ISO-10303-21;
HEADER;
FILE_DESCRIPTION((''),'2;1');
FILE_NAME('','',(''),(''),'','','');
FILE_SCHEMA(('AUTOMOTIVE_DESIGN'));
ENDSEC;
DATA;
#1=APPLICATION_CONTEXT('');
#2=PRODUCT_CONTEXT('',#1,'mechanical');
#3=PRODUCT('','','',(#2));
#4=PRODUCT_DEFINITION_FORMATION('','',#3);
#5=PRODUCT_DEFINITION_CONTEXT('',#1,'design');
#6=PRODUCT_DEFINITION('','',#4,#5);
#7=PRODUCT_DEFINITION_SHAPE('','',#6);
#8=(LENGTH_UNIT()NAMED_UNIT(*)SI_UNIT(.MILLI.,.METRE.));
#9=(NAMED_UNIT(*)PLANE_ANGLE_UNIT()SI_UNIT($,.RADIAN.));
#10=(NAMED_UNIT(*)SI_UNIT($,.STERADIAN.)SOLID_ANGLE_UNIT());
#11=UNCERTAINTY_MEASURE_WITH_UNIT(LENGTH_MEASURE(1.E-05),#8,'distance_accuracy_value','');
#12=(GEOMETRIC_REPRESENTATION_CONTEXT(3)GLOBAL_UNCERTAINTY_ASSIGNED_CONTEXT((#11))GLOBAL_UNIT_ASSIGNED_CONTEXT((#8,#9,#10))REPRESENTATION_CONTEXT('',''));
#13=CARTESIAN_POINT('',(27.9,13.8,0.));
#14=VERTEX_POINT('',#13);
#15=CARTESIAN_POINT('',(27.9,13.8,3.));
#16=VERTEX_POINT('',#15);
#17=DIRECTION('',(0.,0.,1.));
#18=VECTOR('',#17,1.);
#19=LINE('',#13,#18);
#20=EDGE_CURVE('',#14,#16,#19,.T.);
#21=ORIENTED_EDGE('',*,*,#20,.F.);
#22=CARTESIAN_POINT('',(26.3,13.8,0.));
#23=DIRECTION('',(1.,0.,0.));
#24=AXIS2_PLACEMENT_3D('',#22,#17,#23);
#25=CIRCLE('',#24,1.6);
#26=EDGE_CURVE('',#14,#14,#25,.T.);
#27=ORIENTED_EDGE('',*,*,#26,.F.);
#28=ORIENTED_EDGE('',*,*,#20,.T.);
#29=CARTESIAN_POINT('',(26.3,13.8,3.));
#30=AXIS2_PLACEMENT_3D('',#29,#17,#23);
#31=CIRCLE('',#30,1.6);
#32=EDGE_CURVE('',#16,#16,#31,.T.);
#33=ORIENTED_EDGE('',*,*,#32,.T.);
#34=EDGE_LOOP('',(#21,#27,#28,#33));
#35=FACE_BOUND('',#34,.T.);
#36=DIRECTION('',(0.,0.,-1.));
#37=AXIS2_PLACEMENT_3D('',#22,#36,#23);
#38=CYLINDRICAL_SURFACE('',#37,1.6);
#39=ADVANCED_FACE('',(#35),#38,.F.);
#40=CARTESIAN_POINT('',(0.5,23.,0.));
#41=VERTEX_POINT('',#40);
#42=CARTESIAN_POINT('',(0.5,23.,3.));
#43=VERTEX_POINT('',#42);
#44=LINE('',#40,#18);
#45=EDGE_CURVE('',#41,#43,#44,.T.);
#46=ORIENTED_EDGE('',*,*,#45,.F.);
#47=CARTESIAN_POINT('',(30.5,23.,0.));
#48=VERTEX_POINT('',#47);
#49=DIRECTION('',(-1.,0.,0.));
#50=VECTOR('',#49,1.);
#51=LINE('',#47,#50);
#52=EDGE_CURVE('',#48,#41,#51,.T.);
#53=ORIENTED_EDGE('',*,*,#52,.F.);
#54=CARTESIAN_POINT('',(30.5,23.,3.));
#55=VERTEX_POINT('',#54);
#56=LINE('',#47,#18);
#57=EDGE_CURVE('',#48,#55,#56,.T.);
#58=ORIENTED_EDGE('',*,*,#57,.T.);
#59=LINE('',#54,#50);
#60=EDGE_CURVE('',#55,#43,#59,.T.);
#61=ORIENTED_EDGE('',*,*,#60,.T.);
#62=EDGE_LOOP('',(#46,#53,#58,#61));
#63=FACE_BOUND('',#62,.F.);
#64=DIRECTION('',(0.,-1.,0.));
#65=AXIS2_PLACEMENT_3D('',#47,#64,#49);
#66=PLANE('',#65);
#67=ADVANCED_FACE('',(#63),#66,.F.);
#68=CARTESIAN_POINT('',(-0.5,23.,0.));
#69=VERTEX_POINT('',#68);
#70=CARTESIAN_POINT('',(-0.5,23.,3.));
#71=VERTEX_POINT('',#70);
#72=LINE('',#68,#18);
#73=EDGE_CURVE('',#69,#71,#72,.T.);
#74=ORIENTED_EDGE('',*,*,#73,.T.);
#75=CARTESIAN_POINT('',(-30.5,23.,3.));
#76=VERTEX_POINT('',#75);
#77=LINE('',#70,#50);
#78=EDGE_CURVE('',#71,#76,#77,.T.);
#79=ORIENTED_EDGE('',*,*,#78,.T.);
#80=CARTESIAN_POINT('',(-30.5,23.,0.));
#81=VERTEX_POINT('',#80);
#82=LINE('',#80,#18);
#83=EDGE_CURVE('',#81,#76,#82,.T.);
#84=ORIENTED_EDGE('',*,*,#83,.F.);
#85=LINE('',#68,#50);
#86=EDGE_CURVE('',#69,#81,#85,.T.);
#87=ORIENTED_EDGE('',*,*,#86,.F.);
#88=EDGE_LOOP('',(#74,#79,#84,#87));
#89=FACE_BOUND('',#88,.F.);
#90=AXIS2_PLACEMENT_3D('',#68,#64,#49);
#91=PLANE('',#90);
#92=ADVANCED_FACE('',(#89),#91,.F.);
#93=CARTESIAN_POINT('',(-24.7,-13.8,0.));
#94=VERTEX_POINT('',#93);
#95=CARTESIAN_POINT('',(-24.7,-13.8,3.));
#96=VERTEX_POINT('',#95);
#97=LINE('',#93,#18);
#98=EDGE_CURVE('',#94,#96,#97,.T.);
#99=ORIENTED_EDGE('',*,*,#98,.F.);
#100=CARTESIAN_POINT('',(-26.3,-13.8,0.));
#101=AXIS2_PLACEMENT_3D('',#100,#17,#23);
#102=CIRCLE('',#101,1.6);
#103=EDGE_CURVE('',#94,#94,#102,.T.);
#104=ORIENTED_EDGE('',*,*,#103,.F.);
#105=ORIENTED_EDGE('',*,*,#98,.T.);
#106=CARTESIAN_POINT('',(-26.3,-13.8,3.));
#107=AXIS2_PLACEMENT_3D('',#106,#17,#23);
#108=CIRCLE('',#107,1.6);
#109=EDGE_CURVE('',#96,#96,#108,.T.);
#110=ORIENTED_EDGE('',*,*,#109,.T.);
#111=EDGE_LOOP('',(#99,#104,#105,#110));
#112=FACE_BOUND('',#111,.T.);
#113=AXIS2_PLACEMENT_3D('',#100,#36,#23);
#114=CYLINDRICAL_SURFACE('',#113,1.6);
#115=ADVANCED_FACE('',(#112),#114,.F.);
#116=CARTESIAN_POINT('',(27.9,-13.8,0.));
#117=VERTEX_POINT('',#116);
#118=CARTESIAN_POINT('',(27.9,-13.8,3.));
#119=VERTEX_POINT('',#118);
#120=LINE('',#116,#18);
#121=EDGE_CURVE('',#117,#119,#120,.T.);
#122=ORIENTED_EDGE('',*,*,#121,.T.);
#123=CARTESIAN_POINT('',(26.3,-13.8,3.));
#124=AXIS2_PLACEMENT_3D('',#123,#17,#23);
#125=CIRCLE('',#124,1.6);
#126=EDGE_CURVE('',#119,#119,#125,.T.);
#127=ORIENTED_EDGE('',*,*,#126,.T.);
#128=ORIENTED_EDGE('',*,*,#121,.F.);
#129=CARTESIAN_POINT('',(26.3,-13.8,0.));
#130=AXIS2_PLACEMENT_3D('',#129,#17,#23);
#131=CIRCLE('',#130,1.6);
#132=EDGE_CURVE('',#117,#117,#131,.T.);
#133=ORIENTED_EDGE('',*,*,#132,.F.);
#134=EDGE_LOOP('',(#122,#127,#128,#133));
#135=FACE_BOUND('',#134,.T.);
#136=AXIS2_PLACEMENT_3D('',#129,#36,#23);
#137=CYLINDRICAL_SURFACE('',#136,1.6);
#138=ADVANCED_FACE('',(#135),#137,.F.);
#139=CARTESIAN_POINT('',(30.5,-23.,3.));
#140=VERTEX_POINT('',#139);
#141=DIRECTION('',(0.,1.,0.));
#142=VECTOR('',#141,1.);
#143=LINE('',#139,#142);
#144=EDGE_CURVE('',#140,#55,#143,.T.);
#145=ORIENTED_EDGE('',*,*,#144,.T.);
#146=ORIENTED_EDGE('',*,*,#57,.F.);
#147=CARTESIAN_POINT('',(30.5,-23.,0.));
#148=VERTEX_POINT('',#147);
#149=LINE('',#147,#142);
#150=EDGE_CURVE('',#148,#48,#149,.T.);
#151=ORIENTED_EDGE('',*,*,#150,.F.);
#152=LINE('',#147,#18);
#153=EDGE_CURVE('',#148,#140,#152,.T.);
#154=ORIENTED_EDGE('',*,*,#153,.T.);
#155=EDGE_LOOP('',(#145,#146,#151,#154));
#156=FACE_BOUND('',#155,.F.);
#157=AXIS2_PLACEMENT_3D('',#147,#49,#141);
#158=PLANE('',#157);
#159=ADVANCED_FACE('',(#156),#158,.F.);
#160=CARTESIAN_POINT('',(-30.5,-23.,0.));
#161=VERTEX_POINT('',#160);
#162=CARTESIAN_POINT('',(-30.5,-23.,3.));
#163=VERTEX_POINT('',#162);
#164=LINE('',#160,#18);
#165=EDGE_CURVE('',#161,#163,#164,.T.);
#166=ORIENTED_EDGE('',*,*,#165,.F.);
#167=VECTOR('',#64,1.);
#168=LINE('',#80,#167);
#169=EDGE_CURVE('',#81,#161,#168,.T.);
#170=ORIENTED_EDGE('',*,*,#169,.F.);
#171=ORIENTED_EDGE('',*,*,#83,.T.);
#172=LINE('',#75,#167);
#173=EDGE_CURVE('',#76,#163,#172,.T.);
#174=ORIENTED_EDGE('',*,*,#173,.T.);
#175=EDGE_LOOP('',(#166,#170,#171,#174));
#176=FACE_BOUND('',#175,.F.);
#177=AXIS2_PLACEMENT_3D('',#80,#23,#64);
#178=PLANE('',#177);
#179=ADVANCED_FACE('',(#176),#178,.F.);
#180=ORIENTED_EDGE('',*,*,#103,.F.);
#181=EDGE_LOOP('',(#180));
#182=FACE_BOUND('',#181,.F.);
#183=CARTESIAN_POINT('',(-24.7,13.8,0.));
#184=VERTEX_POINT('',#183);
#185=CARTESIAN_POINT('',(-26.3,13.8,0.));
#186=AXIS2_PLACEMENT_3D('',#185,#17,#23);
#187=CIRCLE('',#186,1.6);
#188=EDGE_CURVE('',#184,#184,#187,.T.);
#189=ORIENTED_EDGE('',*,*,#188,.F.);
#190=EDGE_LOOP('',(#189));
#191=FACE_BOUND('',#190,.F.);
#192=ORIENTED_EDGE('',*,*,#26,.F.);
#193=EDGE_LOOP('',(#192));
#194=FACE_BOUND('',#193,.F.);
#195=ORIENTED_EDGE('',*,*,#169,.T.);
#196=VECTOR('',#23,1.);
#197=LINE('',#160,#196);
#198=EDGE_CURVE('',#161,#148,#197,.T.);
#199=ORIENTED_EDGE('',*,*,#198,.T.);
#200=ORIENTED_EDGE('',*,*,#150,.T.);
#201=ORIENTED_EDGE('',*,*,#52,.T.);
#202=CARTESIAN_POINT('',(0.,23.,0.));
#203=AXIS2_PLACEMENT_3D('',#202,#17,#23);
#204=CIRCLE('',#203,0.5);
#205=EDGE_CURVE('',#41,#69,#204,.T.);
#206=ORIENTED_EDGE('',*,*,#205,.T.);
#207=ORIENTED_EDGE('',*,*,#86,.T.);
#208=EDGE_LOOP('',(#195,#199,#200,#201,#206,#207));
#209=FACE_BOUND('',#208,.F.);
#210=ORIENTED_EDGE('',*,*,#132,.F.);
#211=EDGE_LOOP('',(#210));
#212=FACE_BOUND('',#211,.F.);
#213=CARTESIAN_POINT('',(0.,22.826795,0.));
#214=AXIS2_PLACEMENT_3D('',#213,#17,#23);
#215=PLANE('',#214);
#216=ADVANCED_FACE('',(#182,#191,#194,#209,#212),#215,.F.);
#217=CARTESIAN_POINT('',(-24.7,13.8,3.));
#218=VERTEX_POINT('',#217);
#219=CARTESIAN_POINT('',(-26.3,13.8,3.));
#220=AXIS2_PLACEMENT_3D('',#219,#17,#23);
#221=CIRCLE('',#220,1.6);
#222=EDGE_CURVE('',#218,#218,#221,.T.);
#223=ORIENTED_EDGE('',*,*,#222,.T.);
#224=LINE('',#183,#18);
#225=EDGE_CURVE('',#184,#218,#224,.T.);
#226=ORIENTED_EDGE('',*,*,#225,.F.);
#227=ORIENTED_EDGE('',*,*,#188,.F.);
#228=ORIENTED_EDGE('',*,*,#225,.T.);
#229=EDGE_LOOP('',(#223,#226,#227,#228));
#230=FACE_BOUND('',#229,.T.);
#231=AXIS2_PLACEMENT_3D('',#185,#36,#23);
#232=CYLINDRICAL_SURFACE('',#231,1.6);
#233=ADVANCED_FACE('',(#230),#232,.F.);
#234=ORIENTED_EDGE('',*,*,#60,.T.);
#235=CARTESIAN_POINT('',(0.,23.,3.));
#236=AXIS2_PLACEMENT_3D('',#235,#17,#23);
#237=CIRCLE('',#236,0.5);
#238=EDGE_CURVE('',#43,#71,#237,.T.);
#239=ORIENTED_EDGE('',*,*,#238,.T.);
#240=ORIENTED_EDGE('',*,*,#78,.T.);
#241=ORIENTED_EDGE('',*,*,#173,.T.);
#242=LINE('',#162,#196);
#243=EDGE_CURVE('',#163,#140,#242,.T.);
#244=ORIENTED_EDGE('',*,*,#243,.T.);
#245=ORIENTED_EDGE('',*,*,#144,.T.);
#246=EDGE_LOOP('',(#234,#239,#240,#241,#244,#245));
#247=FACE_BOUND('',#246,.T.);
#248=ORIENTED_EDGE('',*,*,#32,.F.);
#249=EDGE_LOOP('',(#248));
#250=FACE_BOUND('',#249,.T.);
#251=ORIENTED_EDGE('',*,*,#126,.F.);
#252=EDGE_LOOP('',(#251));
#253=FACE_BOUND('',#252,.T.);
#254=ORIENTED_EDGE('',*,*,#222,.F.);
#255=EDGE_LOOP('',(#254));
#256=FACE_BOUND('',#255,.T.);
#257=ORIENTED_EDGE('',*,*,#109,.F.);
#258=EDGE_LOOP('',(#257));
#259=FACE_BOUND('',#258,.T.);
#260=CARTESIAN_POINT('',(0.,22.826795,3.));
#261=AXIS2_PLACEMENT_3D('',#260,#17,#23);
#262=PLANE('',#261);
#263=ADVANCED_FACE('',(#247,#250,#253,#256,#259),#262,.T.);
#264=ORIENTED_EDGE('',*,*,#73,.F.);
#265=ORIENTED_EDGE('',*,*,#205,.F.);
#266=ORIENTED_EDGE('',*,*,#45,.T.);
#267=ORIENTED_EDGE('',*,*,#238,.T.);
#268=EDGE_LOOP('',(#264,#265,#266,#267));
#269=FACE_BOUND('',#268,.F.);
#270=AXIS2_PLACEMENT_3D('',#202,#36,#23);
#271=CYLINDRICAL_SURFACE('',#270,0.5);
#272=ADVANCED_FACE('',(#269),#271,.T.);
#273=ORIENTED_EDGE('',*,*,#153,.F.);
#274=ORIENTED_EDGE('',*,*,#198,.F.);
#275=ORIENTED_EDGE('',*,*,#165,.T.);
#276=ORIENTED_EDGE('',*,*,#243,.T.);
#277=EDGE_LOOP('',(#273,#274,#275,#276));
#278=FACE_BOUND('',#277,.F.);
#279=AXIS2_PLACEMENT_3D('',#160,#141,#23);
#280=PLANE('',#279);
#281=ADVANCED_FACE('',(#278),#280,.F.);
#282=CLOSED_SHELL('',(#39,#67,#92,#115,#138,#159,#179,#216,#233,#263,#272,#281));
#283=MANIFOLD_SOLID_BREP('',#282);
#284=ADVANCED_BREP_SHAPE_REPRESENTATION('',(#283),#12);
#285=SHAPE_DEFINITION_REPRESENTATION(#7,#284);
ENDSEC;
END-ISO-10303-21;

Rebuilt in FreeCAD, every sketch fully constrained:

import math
import FreeCAD as App
import Part
import Sketcher
from FreeCAD import Vector

doc = App.newDocument("Part")
body = doc.addObject("PartDesign::Body", "Body")

# Sketch on XY plane
sketch1 = body.newObject("Sketcher::SketchObject", "Sketch")
sketch1.AttachmentSupport = (doc.getObject("XY_Plane"), [""])
sketch1.MapMode = "FlatFace"
sketch1.addGeometry([
    Part.ArcOfCircle(Part.Circle(Vector(0, 23, 0), Vector(0, 0, 1), 0.5), math.radians(0), math.radians(180)),  # 0
    Part.LineSegment(Vector(-0.5, 23, 0), Vector(-30.5, 23, 0)),  # 1
    Part.LineSegment(Vector(-30.5, 23, 0), Vector(-30.5, -23, 0)),  # 2
    Part.LineSegment(Vector(-30.5, -23, 0), Vector(30.5, -23, 0)),  # 3
    Part.LineSegment(Vector(30.5, -23, 0), Vector(30.5, 23, 0)),  # 4
    Part.LineSegment(Vector(30.5, 23, 0), Vector(0.5, 23, 0)),  # 5
    Part.Circle(Vector(-26.3, -13.8, 0), Vector(0, 0, 1), 1.6),  # 6
    Part.Circle(Vector(26.3, -13.8, 0), Vector(0, 0, 1), 1.6),  # 7
    Part.Circle(Vector(-26.3, 13.8, 0), Vector(0, 0, 1), 1.6),  # 8
    Part.Circle(Vector(26.3, 13.8, 0), Vector(0, 0, 1), 1.6),  # 9
], False)
sketch1.addConstraint([
    Sketcher.Constraint("Coincident", 0, 2, 1, 1),
    Sketcher.Constraint("Coincident", 1, 2, 2, 1),
    Sketcher.Constraint("Coincident", 2, 2, 3, 1),
    Sketcher.Constraint("Coincident", 3, 2, 4, 1),
    Sketcher.Constraint("Coincident", 4, 2, 5, 1),
    Sketcher.Constraint("Coincident", 5, 2, 0, 1),
    Sketcher.Constraint("Horizontal", 1),
    Sketcher.Constraint("Vertical", 2),
    Sketcher.Constraint("Horizontal", 3),
    Sketcher.Constraint("Vertical", 4),
    Sketcher.Constraint("Horizontal", 5),
    Sketcher.Constraint("Equal", 6, 7),
    Sketcher.Constraint("Equal", 7, 8),
    Sketcher.Constraint("Equal", 8, 9),
    Sketcher.Constraint("Symmetric", 7, 3, 8, 3, -1, 1),
    Sketcher.Constraint("Symmetric", 6, 3, 9, 3, -1, 1),
    Sketcher.Constraint("Symmetric", 1, 2, 3, 2, -1, 1),
    Sketcher.Constraint("Symmetric", 6, 3, 7, 3, -2),
    Sketcher.Constraint("Symmetric", 0, 2, 5, 2, -2),
    Sketcher.Constraint("Diameter", 6, 3.2),
    Sketcher.Constraint("Radius", 0, 0.5),
    Sketcher.Constraint("DistanceX", 1, 2, 1, 1, 30.0),
    Sketcher.Constraint("DistanceY", 2, 2, 2, 1, 46.0),
    Sketcher.Constraint("DistanceY", -1, 1, 0, 3, 23.0),
    Sketcher.Constraint("DistanceX", 6, 3, -1, 1, 26.3),
    Sketcher.Constraint("DistanceY", 6, 3, -1, 1, 13.8),
])
pad1 = body.newObject("PartDesign::Pad", "Pad")
pad1.Profile = sketch1
pad1.Length = 3

doc.recompute()
